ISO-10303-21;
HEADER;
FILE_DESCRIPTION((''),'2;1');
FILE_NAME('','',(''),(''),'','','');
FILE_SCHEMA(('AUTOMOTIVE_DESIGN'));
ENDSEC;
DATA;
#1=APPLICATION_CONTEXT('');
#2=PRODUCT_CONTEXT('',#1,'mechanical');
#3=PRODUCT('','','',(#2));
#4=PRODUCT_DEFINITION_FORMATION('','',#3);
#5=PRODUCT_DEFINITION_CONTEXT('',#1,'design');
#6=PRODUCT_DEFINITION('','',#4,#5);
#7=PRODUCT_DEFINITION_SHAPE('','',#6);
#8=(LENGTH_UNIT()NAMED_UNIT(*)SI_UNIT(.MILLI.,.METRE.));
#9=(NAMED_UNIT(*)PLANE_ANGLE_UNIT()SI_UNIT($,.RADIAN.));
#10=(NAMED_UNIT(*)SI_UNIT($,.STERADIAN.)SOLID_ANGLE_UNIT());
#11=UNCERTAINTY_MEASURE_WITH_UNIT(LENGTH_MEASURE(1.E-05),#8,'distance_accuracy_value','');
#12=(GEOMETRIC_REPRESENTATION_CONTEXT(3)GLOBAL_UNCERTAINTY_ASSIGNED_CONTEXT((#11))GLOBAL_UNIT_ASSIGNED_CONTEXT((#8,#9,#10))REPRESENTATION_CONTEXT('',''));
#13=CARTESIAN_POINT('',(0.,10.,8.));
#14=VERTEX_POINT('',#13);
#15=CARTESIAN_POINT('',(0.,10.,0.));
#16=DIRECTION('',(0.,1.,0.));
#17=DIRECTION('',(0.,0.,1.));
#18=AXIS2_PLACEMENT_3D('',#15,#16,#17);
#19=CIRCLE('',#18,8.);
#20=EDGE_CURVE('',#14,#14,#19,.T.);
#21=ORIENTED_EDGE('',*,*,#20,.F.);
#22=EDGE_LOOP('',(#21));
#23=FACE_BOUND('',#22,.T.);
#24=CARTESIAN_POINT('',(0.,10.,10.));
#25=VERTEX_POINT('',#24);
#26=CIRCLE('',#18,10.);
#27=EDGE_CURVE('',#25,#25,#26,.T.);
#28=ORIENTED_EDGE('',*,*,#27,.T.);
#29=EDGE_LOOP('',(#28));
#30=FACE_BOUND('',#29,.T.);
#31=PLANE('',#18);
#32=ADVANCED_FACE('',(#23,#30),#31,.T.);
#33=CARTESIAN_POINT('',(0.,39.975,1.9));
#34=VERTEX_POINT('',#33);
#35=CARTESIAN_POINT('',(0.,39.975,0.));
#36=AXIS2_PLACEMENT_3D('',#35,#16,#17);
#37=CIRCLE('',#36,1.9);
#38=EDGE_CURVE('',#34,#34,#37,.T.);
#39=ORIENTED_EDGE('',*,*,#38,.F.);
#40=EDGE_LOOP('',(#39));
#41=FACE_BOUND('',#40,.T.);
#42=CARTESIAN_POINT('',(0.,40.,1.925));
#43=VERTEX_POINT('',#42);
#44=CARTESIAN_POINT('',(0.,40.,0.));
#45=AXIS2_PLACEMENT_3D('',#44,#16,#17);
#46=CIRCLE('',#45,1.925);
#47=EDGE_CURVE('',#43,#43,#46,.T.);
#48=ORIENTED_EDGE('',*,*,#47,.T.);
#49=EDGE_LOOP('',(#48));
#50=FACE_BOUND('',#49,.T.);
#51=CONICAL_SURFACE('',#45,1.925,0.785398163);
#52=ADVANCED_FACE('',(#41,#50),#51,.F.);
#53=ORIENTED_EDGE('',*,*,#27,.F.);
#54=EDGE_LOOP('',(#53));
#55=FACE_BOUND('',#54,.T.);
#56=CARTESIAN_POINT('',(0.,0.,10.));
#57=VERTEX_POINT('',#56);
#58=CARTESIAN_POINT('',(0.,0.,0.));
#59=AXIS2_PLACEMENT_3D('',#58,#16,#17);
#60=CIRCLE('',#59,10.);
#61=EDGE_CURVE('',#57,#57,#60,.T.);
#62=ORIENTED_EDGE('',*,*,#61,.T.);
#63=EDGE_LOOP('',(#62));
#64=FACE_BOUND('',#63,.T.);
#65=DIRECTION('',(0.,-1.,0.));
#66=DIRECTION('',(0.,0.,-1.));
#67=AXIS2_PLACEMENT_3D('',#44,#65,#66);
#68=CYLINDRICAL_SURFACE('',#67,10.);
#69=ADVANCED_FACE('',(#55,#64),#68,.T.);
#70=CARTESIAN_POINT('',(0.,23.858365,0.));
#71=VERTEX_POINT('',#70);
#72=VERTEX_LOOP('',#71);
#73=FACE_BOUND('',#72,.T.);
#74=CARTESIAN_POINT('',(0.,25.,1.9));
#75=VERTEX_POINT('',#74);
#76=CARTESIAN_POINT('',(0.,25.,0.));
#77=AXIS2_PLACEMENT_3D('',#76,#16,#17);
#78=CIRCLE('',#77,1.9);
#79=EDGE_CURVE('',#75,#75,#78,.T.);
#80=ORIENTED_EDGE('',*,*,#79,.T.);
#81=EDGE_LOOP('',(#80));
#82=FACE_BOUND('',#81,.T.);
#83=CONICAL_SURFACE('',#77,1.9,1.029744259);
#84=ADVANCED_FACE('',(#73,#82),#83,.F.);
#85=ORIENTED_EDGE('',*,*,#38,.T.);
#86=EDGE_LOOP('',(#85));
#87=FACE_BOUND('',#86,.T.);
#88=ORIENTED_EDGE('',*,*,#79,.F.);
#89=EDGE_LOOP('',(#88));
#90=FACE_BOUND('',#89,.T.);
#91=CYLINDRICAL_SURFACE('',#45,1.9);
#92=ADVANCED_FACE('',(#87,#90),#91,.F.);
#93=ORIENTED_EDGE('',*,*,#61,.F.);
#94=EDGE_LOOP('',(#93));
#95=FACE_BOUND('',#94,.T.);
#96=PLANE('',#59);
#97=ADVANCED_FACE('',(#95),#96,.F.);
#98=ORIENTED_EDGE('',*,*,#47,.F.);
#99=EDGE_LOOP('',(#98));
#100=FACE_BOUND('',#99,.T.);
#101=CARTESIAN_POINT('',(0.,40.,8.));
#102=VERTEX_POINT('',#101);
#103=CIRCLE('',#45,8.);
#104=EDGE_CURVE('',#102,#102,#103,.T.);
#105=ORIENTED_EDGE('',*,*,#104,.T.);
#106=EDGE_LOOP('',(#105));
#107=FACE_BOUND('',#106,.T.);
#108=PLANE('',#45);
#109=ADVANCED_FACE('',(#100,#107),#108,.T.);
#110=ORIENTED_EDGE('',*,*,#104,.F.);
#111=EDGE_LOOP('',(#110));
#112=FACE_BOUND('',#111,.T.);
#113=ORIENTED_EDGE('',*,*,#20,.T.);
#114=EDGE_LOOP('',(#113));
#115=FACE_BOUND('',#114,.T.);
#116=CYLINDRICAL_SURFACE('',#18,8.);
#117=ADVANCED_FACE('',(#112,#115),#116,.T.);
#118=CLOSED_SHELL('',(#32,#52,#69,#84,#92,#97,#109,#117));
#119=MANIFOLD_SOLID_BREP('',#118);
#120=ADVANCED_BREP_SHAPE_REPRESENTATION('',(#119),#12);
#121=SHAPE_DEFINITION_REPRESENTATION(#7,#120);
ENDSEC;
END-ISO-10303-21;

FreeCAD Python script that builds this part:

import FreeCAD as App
import Part
import Sketcher
from FreeCAD import Vector
Q = App.Units.Quantity

doc = App.newDocument("Part")
body = doc.addObject("PartDesign::Body", "Body")

# Sketch on XZ plane
sketch1 = body.newObject("Sketcher::SketchObject", "Sketch")
sketch1.AttachmentSupport = (doc.getObject("XZ_Plane"), [""])
sketch1.MapMode = "FlatFace"
sketch1.addGeometry(Part.Circle(Vector(0, 0, 0), Vector(0, 0, 1), 10), False)
sketch1.addConstraint([
    Sketcher.Constraint("Coincident", 0, 3, -1, 1),
    Sketcher.Constraint("Diameter", 0, Q("20 mm")),
])
pad1 = body.newObject("PartDesign::Pad", "Pad")
pad1.Profile = sketch1
pad1.Length = 40
pad1.Reversed = True

# Sketch on XZ plane
sketch2 = body.newObject("Sketcher::SketchObject", "Sketch001")
sketch2.AttachmentSupport = (doc.getObject("XZ_Plane"), [""])
sketch2.MapMode = "FlatFace"
sketch2.AttachmentOffset = App.Placement(Vector(0, 0, -40), App.Rotation())
sketch2.addGeometry(Part.Circle(Vector(0, 0, 0), Vector(0, 0, 1), 1.9), False)
sketch2.addConstraint([
    Sketcher.Constraint("Coincident", 0, 3, -1, 1),
    Sketcher.Constraint("Diameter", 0, Q("3.8 mm")),
])
doc.recompute()
hole = body.newObject("PartDesign::Hole", "Hole")
hole.Profile = sketch2
hole.ThreadType = "None"
hole.Diameter = 3.8
hole.DepthType = "Dimension"
hole.Depth = 15
hole.DrillPoint = "Angled"
hole.DrillPointAngle = 118
hole.HoleCutType = "Countersink"
hole.HoleCutDiameter = 3.85
hole.HoleCutCountersinkAngle = 90
hole.Reversed = True

# Sketch on XZ plane
sketch3 = body.newObject("Sketcher::SketchObject", "Sketch002")
sketch3.AttachmentSupport = (doc.getObject("XZ_Plane"), [""])
sketch3.MapMode = "FlatFace"
sketch3.AttachmentOffset = App.Placement(Vector(0, 0, -40), App.Rotation())
sketch3.addGeometry([
    Part.Circle(Vector(0, 0, 0), Vector(0, 0, 1), 14),
    Part.Circle(Vector(0, 0, 0), Vector(0, 0, 1), 8),
], False)
sketch3.addConstraint([
    Sketcher.Constraint("Coincident", 0, 3, -1, 1),
    Sketcher.Constraint("Coincident", 1, 3, -1, 1),
    Sketcher.Constraint("Diameter", 1, Q("16 mm")),
    Sketcher.Constraint("Diameter", 0, Q("27.705921 mm")),
])
pocket1 = body.newObject("PartDesign::Pocket", "Pocket")
pocket1.Profile = sketch3
pocket1.Length = 30
pocket1.Reversed = True

doc.recompute()
